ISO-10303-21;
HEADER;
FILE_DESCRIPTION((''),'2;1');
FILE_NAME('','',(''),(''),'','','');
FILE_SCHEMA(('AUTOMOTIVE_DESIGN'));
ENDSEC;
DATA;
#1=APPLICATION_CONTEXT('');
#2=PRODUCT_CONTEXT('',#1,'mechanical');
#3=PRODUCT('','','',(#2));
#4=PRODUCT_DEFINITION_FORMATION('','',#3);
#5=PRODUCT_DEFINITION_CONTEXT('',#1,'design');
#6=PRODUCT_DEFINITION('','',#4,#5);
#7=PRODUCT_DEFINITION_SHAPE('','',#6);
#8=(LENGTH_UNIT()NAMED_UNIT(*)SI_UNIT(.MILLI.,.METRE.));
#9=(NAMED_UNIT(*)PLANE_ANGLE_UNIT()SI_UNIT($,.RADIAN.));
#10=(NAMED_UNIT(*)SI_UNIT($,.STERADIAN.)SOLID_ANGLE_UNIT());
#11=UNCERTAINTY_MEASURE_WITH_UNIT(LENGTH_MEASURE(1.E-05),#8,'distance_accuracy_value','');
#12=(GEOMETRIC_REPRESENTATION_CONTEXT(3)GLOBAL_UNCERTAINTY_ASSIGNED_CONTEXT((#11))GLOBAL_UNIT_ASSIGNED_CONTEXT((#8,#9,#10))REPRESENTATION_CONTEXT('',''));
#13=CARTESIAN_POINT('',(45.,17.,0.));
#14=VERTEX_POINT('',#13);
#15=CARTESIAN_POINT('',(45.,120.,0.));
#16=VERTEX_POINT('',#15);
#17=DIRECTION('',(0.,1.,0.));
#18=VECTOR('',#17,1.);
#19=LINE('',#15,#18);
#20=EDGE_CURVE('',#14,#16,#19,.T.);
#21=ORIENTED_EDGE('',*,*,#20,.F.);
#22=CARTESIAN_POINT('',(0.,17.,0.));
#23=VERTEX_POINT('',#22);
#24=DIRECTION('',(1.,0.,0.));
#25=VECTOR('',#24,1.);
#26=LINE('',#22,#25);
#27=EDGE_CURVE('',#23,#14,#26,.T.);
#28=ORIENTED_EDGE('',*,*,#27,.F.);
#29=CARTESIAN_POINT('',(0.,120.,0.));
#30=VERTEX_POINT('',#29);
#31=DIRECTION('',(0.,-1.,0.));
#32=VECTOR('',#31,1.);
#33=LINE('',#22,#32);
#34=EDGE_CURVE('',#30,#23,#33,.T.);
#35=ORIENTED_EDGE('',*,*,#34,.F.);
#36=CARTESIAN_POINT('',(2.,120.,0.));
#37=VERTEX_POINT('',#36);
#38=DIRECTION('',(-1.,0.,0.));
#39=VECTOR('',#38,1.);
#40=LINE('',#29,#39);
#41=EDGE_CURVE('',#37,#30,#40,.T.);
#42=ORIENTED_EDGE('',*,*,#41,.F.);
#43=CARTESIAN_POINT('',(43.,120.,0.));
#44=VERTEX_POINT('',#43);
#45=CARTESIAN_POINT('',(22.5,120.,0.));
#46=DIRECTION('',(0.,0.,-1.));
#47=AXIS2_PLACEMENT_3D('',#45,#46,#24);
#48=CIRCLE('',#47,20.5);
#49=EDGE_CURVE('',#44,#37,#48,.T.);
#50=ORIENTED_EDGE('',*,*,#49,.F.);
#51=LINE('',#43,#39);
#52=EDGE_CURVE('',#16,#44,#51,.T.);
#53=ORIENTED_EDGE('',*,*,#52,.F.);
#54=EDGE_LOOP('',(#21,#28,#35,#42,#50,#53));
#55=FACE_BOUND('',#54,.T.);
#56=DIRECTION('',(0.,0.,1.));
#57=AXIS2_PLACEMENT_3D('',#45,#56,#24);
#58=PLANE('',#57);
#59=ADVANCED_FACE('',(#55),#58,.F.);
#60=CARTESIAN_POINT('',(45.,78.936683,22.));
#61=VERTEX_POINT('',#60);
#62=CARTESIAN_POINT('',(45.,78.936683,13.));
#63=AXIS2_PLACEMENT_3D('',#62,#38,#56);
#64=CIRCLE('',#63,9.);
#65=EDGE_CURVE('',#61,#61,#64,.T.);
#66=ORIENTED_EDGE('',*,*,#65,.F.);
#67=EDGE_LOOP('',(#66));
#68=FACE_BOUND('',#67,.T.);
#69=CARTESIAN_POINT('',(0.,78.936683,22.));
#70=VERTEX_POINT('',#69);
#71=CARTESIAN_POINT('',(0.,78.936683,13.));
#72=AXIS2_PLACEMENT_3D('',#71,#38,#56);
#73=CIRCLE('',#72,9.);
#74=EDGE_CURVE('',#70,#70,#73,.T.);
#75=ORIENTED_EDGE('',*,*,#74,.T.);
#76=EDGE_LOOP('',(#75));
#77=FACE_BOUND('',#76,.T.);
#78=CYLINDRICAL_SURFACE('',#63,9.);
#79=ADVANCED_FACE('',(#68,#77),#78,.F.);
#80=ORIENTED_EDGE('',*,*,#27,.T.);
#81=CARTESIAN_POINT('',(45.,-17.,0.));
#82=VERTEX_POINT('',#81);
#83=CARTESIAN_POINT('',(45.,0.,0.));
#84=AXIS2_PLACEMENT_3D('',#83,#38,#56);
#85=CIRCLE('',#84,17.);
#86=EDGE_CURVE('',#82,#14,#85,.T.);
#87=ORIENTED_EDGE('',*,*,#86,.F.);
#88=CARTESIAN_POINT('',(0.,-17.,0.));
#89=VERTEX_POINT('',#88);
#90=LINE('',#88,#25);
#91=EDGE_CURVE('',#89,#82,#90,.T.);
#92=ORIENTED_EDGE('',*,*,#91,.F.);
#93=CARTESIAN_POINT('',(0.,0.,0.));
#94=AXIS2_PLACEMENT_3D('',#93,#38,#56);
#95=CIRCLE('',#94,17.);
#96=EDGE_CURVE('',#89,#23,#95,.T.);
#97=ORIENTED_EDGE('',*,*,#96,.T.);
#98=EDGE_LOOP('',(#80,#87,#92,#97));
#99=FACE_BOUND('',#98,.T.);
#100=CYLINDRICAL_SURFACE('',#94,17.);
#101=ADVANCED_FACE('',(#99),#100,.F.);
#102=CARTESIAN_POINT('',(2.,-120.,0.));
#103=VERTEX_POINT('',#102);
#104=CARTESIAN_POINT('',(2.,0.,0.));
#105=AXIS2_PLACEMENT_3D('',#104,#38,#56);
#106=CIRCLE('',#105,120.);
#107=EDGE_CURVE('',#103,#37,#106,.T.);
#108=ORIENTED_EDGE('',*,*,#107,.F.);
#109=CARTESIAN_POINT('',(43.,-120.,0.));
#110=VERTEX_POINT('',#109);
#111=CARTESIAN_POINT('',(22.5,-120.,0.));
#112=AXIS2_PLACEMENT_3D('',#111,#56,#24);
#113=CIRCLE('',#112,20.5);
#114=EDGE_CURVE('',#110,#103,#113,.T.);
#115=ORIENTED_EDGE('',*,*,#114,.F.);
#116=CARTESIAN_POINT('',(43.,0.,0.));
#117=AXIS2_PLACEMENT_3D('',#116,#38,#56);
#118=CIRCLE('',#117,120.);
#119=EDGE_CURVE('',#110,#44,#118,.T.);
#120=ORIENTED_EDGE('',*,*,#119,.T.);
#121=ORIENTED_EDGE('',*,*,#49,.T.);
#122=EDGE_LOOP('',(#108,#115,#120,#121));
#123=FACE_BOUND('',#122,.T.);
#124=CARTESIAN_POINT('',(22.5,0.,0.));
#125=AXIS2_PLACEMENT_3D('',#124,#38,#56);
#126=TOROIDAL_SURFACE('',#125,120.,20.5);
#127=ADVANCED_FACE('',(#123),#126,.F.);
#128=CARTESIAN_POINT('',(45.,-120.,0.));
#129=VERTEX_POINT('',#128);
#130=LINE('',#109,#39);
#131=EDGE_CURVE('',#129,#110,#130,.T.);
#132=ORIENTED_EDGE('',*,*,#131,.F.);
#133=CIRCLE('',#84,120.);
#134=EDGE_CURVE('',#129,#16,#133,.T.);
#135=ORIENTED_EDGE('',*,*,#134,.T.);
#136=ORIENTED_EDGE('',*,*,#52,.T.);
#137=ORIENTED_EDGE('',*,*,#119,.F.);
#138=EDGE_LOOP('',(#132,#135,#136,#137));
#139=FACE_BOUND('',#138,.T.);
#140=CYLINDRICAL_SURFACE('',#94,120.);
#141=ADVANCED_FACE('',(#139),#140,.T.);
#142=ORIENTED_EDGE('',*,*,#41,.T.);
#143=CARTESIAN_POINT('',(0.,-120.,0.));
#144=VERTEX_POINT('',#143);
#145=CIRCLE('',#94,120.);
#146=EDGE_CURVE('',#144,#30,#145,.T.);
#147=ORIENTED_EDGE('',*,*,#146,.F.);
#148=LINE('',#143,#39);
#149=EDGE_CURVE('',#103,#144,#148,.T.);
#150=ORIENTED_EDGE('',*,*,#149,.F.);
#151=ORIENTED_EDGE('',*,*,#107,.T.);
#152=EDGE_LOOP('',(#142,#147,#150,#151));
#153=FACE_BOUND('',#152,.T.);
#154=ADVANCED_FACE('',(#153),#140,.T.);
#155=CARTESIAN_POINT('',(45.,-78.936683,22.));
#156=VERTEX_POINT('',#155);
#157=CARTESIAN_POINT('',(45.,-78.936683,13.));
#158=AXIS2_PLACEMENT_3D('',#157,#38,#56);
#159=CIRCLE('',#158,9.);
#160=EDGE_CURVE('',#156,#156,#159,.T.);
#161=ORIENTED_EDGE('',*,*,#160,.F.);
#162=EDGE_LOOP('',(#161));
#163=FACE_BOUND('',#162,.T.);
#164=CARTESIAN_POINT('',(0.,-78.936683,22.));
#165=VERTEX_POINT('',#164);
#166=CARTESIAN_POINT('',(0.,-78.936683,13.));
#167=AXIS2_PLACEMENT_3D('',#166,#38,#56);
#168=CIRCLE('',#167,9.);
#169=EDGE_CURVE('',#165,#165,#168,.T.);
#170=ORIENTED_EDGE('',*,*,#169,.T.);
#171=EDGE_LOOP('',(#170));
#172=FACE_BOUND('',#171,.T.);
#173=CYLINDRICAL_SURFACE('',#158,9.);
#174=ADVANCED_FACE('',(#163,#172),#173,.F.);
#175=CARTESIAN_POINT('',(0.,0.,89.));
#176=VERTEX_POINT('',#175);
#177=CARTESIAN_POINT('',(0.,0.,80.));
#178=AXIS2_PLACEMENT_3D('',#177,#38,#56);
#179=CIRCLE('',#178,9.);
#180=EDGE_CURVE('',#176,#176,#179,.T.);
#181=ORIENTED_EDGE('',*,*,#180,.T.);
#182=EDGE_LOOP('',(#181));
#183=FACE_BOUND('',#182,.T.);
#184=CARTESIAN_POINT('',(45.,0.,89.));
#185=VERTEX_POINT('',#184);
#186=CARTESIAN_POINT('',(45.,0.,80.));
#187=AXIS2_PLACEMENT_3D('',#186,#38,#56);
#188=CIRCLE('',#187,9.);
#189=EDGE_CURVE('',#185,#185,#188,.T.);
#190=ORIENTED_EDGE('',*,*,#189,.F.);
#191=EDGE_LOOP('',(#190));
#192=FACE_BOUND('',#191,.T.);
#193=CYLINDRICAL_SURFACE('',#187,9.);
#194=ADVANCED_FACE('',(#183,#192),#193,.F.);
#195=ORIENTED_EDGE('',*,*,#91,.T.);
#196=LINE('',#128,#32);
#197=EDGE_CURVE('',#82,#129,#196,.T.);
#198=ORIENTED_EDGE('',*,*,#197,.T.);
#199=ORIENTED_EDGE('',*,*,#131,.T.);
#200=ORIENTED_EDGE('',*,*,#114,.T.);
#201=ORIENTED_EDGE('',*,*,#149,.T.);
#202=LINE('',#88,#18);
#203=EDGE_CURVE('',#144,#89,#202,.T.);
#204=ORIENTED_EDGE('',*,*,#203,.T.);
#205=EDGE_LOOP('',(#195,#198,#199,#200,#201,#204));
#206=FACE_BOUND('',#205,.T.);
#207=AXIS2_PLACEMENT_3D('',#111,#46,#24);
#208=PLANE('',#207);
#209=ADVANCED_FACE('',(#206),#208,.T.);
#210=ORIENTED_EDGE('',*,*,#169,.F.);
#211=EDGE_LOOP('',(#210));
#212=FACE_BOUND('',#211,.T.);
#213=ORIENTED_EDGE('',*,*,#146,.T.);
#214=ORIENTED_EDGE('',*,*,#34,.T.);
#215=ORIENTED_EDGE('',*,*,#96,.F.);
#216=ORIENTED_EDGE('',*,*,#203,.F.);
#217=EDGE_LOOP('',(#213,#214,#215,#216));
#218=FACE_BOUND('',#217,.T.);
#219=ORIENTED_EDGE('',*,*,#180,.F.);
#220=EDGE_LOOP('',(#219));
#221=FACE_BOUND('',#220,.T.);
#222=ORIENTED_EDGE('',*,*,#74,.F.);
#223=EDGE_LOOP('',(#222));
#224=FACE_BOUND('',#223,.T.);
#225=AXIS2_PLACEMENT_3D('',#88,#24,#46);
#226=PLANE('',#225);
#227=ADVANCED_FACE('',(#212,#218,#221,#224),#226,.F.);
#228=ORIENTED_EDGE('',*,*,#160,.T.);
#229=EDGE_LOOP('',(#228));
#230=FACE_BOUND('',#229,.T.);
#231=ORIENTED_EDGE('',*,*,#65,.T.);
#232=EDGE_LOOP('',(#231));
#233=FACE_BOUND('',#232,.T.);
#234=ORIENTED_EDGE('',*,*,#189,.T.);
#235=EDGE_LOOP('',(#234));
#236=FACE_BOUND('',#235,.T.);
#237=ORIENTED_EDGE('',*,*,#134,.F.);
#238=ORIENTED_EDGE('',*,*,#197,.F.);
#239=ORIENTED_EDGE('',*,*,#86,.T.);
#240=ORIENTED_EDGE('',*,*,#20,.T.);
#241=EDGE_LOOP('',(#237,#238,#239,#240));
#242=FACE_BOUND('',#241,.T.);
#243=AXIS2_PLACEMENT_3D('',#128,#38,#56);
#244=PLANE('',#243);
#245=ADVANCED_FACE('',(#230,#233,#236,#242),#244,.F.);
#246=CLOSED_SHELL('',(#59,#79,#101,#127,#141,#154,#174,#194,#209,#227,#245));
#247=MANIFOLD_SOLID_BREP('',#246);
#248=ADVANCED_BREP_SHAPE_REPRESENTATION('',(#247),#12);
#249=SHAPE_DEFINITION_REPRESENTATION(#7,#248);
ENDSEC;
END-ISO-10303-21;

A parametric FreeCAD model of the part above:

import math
import FreeCAD as App
import Part
import Sketcher
from FreeCAD import Vector
Q = App.Units.Quantity

doc = App.newDocument("Part")
body = doc.addObject("PartDesign::Body", "Body")

# Sketch on XY plane
sketch1 = body.newObject("Sketcher::SketchObject", "Sketch")
sketch1.AttachmentSupport = (doc.getObject("XY_Plane"), [""])
sketch1.MapMode = "FlatFace"
sketch1.addGeometry([
    Part.LineSegment(Vector(0, 120, 0), Vector(0, 17, 0)),  # 0
    Part.LineSegment(Vector(0, 17, 0), Vector(45, 17, 0)),  # 1
    Part.LineSegment(Vector(45, 17, 0), Vector(45, 120, 0)),  # 2
    Part.LineSegment(Vector(45, 120, 0), Vector(43, 120, 0)),  # 3
    Part.ArcOfCircle(Part.Circle(Vector(22.5, 120, 0), Vector(0, 0, 1), 20.5), math.radians(180), math.radians(360)),  # 4
    Part.LineSegment(Vector(2, 120, 0), Vector(0, 120, 0)),  # 5
], False)
sketch1.addConstraint([
    Sketcher.Constraint("Coincident", 0, 2, 1, 1),
    Sketcher.Constraint("Coincident", 1, 2, 2, 1),
    Sketcher.Constraint("Coincident", 2, 2, 3, 1),
    Sketcher.Constraint("Coincident", 3, 2, 4, 2),
    Sketcher.Constraint("Coincident", 4, 1, 5, 1),
    Sketcher.Constraint("Coincident", 5, 2, 0, 1),
    Sketcher.Constraint("Vertical", 0),
    Sketcher.Constraint("Horizontal", 1),
    Sketcher.Constraint("Vertical", 2),
    Sketcher.Constraint("Horizontal", 3),
    Sketcher.Constraint("Horizontal", 5),
    Sketcher.Constraint("PointOnObject", 0, 2, -2),
    Sketcher.Constraint("Horizontal", 4, 3, 2, 2),
    Sketcher.Constraint("Horizontal", 3, 2, 4, 1),
    Sketcher.Constraint("Equal", 3, 5),
    Sketcher.Constraint("Radius", 4, Q("20.5 mm")),
    Sketcher.Constraint("DistanceX", 1, 1, 1, 2, Q("45 mm")),
    Sketcher.Constraint("DistanceY", 0, 2, 0, 1, Q("103 mm")),
    Sketcher.Constraint("DistanceY", -1, 1, 4, 3, Q("120 mm")),
])
revolution = body.newObject("PartDesign::Revolution", "Revolution")
revolution.Profile = sketch1
revolution.ReferenceAxis = (sketch1, ["H_Axis"])
revolution.Angle = 180

# Sketch on YZ plane
sketch2 = body.newObject("Sketcher::SketchObject", "Sketch001")
sketch2.AttachmentSupport = (doc.getObject("YZ_Plane"), [""])
sketch2.MapMode = "FlatFace"
sketch2.addGeometry([
    Part.Circle(Vector(0, 80, 0), Vector(0, 0, 1), 9),
    Part.Circle(Vector(-79, 13, 0), Vector(0, 0, 1), 9),
    Part.Circle(Vector(79, 13, 0), Vector(0, 0, 1), 9),
], False)
sketch2.addConstraint([
    Sketcher.Constraint("Equal", 0, 1),
    Sketcher.Constraint("Equal", 1, 2),
    Sketcher.Constraint("Symmetric", 1, 3, 2, 3, -2),
    Sketcher.Constraint("PointOnObject", 0, 3, -2),
    Sketcher.Constraint("Diameter", 0, Q("18 mm")),
    Sketcher.Constraint("DistanceY", -1, 1, 0, 3, Q("80 mm")),
    Sketcher.Constraint("DistanceY", -1, 1, 1, 3, Q("13 mm")),
    Sketcher.Constraint("DistanceX", 1, 3, -1, 1, Q("78.936683 mm")),
])
pocket1 = body.newObject("PartDesign::Pocket", "Pocket")
pocket1.Profile = sketch2
pocket1.Type = "ThroughAll"
pocket1.Reversed = True

doc.recompute()
